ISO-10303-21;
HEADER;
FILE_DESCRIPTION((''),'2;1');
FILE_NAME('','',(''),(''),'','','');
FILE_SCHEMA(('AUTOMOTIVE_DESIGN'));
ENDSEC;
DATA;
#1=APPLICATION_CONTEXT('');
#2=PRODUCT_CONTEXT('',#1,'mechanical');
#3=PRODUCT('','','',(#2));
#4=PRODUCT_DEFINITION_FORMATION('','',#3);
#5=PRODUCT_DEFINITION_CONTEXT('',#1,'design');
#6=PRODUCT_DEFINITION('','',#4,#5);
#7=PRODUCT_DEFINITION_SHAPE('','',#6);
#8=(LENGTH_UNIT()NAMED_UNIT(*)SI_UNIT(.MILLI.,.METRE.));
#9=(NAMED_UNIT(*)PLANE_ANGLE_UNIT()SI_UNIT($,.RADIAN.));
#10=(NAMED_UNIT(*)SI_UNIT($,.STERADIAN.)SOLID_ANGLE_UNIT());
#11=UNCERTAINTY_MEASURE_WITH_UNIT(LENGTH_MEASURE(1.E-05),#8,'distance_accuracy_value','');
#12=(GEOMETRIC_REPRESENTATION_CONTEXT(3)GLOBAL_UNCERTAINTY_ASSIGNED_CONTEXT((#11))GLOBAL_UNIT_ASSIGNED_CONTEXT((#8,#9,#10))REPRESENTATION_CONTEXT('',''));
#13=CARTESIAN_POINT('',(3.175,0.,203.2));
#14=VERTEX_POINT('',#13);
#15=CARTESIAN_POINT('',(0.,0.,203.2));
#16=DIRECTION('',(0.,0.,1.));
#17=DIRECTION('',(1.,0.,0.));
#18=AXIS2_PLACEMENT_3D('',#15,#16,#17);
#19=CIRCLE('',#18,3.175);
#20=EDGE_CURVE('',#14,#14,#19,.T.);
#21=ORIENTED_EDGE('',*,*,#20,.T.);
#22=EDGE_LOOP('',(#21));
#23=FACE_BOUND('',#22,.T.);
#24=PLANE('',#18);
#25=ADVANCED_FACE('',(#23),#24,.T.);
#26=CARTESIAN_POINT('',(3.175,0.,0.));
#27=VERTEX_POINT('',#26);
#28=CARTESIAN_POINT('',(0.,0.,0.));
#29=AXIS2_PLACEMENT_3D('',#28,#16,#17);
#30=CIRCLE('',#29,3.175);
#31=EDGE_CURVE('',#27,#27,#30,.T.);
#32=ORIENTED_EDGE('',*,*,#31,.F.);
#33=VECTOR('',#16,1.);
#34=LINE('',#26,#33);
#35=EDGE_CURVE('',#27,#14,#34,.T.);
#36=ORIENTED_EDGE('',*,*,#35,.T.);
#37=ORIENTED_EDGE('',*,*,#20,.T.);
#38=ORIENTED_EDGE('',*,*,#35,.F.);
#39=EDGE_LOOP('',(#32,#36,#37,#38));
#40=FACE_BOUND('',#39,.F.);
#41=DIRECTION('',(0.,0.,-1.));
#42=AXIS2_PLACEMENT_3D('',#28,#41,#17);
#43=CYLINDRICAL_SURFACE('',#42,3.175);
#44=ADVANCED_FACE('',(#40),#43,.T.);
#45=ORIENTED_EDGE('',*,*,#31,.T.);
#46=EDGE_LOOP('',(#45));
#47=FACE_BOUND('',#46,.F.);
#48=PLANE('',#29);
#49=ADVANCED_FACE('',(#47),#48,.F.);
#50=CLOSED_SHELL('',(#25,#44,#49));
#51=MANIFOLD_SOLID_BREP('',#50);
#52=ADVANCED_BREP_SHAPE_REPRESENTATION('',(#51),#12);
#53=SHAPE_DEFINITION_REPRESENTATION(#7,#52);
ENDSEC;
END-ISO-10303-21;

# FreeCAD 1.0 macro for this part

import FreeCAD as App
import Part
import Sketcher

V = App.Vector
Q = App.Units.Quantity

doc = App.newDocument("Part")
params = doc.addObject("Spreadsheet::Sheet", "Params")
for row, (alias, value) in enumerate([
    ("sketch1_diameter", "0.25 in"),
    ("pad1_length", "8 in"),
], start=1):
    params.set(f"A{row}", alias)
    params.set(f"B{row}", "=" + value)
    params.setAlias(f"B{row}", alias)

body = doc.addObject("PartDesign::Body", "Body")

# Sketch on XY plane
sketch1 = body.newObject("Sketcher::SketchObject", "Sketch")
sketch1.AttachmentSupport = (doc.getObject("XY_Plane"), [""])
sketch1.MapMode = "FlatFace"
sketch1.addGeometry(Part.Circle(V(0, 0, 0), V(0, 0, 1), 3.2), False)
sketch1.addConstraint([
    Sketcher.Constraint("Coincident", 0, 3, -1, 1),
    Sketcher.Constraint("Diameter", 0, Q("0.25 in")),
])
sketch1.setExpression("Constraints[1]", "Params.sketch1_diameter")
pad1 = body.newObject("PartDesign::Pad", "Pad")
pad1.Profile = sketch1
pad1.setExpression("Length", "Params.pad1_length")

doc.recompute()
